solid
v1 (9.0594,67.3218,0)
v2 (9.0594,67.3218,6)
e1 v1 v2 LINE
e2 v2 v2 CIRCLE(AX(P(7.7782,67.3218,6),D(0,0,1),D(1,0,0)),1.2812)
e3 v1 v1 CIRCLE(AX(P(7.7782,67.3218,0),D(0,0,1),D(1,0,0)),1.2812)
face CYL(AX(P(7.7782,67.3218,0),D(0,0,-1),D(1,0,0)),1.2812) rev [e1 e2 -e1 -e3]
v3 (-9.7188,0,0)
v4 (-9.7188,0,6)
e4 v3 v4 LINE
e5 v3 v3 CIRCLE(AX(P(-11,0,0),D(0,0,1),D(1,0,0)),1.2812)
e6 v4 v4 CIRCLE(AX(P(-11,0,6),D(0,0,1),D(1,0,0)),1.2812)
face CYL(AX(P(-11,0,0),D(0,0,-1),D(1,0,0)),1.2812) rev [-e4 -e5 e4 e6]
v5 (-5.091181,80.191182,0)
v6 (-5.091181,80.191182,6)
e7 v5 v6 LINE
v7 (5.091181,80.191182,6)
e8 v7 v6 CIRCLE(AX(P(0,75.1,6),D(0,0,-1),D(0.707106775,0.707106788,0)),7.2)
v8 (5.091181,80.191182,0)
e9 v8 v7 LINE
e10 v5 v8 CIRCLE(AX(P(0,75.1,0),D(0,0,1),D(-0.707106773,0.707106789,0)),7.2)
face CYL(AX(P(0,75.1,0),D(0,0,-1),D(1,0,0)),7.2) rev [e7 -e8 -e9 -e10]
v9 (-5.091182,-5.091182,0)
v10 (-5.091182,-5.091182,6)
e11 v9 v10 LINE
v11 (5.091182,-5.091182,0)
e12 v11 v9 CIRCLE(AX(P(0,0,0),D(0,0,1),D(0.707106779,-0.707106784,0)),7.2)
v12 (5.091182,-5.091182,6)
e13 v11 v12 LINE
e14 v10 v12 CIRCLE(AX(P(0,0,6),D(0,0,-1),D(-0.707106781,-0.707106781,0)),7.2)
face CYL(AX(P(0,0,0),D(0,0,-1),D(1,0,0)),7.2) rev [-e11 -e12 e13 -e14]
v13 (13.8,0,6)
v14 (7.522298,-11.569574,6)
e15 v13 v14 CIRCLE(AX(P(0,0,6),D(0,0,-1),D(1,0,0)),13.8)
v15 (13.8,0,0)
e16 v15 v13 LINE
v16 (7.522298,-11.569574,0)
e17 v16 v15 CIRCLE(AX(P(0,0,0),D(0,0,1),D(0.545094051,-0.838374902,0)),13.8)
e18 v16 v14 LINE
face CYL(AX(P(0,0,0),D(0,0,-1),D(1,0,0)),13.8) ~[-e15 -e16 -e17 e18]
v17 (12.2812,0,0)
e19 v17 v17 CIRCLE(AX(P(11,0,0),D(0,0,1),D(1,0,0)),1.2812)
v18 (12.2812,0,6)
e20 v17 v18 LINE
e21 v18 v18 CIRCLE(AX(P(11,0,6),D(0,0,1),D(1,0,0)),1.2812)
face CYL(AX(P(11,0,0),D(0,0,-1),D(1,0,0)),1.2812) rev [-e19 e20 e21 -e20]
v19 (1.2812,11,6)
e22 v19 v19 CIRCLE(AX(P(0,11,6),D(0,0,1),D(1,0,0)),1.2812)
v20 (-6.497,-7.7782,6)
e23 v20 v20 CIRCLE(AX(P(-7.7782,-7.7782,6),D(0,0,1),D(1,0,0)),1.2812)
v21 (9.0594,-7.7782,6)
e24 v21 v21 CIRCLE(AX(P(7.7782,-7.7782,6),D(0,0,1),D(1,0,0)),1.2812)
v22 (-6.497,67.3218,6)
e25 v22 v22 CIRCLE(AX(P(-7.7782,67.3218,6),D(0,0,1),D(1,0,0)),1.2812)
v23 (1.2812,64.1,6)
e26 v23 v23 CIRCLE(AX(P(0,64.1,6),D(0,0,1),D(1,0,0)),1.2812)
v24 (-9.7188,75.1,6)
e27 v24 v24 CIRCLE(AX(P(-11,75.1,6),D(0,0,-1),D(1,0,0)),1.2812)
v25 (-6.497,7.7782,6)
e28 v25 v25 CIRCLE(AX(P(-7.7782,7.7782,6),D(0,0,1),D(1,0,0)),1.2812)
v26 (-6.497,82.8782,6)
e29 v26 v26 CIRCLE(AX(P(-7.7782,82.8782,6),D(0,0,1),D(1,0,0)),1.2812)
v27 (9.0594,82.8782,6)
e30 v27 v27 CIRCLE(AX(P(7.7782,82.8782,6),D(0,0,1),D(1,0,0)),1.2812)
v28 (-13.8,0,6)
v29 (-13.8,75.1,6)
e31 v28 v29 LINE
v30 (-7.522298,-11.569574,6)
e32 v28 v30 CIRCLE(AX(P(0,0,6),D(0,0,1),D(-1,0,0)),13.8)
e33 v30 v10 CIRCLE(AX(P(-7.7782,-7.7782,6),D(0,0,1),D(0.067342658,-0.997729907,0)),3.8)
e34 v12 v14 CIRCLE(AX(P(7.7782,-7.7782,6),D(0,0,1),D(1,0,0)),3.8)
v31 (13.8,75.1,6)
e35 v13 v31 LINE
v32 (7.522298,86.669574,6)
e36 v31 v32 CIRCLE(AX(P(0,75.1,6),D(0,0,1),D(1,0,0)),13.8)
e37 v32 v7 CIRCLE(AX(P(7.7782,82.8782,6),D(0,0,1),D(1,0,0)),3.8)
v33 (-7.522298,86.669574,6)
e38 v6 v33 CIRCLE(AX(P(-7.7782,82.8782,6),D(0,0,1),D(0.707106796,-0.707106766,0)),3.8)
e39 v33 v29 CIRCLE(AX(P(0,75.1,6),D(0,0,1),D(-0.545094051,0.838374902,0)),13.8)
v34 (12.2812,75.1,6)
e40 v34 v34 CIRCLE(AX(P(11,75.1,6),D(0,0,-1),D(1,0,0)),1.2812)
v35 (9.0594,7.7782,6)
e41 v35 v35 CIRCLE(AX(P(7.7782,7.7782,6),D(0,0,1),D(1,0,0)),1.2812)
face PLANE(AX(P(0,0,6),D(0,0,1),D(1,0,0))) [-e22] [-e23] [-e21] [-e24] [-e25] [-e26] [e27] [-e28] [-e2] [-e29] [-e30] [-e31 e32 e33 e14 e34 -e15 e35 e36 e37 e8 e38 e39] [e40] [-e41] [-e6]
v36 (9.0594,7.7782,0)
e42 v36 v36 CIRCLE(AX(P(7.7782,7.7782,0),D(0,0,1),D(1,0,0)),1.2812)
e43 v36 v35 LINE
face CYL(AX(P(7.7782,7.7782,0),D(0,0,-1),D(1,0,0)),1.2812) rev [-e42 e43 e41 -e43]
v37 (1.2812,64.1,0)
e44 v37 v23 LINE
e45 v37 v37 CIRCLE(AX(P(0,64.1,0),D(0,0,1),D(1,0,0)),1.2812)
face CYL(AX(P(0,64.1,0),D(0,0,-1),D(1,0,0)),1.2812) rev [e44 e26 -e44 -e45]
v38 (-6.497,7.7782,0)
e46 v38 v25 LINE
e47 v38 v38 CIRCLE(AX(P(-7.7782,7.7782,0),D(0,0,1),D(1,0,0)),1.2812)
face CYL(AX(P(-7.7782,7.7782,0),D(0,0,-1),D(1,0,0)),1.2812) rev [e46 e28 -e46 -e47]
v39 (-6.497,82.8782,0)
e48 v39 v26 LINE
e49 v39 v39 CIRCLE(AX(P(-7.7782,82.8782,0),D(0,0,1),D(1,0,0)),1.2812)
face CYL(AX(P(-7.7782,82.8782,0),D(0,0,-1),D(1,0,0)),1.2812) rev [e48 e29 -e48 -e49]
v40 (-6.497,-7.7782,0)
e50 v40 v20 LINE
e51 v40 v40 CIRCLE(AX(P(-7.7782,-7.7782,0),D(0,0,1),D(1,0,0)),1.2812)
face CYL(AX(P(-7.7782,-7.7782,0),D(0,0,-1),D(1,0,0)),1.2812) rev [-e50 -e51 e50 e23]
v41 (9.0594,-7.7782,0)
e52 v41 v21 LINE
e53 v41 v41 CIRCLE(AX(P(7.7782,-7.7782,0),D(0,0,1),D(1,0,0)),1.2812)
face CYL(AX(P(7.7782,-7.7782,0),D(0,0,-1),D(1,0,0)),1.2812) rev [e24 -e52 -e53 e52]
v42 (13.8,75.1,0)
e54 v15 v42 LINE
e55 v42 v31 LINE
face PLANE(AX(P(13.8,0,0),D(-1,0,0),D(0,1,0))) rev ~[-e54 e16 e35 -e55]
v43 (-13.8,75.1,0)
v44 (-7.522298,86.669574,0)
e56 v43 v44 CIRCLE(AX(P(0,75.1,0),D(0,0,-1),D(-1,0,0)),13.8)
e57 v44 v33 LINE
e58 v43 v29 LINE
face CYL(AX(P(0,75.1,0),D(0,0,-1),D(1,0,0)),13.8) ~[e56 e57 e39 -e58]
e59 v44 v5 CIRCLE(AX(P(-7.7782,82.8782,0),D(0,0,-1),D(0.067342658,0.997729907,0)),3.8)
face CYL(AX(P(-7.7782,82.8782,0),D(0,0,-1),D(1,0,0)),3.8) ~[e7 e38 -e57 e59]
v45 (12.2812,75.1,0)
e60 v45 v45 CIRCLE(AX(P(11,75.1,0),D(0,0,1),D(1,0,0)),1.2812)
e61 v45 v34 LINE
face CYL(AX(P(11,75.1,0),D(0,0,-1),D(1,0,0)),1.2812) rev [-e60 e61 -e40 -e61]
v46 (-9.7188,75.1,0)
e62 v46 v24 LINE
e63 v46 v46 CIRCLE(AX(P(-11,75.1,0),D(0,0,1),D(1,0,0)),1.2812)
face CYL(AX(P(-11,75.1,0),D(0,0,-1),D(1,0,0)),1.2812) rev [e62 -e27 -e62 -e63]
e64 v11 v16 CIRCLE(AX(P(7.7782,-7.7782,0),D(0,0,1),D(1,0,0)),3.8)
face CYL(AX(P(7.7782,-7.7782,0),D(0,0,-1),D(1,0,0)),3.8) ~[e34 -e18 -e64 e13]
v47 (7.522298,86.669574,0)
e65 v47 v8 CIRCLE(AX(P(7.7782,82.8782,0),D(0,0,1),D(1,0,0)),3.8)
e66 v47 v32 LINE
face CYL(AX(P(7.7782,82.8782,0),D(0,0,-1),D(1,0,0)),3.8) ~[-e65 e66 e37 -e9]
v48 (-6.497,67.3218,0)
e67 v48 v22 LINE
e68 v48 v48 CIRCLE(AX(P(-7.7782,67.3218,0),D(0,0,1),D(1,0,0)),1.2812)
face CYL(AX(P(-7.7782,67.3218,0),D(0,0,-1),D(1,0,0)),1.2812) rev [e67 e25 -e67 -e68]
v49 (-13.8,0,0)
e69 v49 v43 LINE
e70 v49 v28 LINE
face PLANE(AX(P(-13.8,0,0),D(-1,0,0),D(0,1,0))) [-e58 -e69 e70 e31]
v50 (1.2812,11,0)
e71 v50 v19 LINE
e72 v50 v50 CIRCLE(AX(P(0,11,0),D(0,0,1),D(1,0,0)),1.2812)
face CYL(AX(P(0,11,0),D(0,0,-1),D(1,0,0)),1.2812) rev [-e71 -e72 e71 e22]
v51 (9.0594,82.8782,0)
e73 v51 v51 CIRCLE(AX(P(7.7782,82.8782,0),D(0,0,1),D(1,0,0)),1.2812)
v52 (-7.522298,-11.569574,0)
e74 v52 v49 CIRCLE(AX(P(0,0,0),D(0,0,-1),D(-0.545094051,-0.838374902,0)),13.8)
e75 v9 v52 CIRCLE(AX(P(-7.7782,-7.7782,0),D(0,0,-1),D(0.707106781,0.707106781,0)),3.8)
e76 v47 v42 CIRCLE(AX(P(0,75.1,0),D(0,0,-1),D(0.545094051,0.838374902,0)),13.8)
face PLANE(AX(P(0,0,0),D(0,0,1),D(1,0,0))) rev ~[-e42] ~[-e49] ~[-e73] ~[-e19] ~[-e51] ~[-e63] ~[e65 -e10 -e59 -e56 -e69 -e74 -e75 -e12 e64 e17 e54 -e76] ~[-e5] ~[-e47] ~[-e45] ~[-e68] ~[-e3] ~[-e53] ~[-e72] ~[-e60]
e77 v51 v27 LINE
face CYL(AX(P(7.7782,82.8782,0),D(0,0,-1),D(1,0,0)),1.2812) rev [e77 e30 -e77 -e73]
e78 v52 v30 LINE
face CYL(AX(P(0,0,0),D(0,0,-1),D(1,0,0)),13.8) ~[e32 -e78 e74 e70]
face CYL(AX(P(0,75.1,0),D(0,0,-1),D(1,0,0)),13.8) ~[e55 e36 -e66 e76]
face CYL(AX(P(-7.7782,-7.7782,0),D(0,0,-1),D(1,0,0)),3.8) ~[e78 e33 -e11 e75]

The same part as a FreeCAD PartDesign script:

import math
import FreeCAD as App
import Part
import Sketcher
Q = App.Units.Quantity

doc = App.newDocument("Part")
body = doc.addObject("PartDesign::Body", "Body")

sketch1 = body.newObject("Sketcher::SketchObject", "Sketch")
sketch1.AttachmentSupport = (doc.getObject("XY_Plane"), [""])
sketch1.MapMode = "FlatFace"
sketch1.addGeometry(Part.LineSegment(App.Vector(13.8, 0, 0), App.Vector(13.8, 75.1, 0)), False)
sketch1.addGeometry(Part.ArcOfCircle(Part.Circle(App.Vector(0, 75.1, 0), App.Vector(0, 0, 1), 13.8), math.radians(0), math.radians(56.968909)), False)
sketch1.addGeometry(Part.ArcOfCircle(Part.Circle(App.Vector(7.7782, 82.8782, 0), App.Vector(0, 0, 1), 3.8), math.radians(93.861372), math.radians(224.999999)), False)
sketch1.addGeometry(Part.ArcOfCircle(Part.Circle(App.Vector(0, 75.1, 0), App.Vector(0, 0, 1), 7.2), math.radians(134.999999), math.radians(405.000001)), False)
sketch1.addGeometry(Part.ArcOfCircle(Part.Circle(App.Vector(-7.7782, 82.8782, 0), App.Vector(0, 0, 1), 3.8), math.radians(-44.999999), math.radians(86.138628)), False)
sketch1.addGeometry(Part.ArcOfCircle(Part.Circle(App.Vector(0, 75.1, 0), App.Vector(0, 0, 1), 13.8), math.radians(123.031091), math.radians(180)), False)
sketch1.addGeometry(Part.LineSegment(App.Vector(-13.8, 75.1, 0), App.Vector(-13.8, 0, 0)), False)
sketch1.addGeometry(Part.ArcOfCircle(Part.Circle(App.Vector(0, 0, 0), App.Vector(0, 0, 1), 13.8), math.radians(180), math.radians(236.968909)), False)
sketch1.addGeometry(Part.ArcOfCircle(Part.Circle(App.Vector(-7.7782, -7.7782, 0), App.Vector(0, 0, 1), 3.8), math.radians(-86.138628), math.radians(45)), False)
sketch1.addGeometry(Part.ArcOfCircle(Part.Circle(App.Vector(0, 0, 0), App.Vector(0, 0, 1), 7.2), math.radians(-45), math.radians(225)), False)
sketch1.addGeometry(Part.ArcOfCircle(Part.Circle(App.Vector(7.7782, -7.7782, 0), App.Vector(0, 0, 1), 3.8), math.radians(135), math.radians(266.138628)), False)
sketch1.addGeometry(Part.ArcOfCircle(Part.Circle(App.Vector(0, 0, 0), App.Vector(0, 0, 1), 13.8), math.radians(-56.968909), math.radians(0)), False)
sketch1.addGeometry(Part.Circle(App.Vector(-11, 0, 0), App.Vector(0, 0, 1), 1.2812), False)
sketch1.addGeometry(Part.Circle(App.Vector(-7.7782, 7.7782, 0), App.Vector(0, 0, 1), 1.2812), False)
sketch1.addGeometry(Part.Circle(App.Vector(0, 11, 0), App.Vector(0, 0, 1), 1.2812), False)
sketch1.addGeometry(Part.Circle(App.Vector(7.7782, 7.7782, 0), App.Vector(0, 0, 1), 1.2812), False)
sketch1.addGeometry(Part.Circle(App.Vector(11, 0, 0), App.Vector(0, 0, 1), 1.2812), False)
sketch1.addGeometry(Part.Circle(App.Vector(7.7782, -7.7782, 0), App.Vector(0, 0, 1), 1.2812), False)
sketch1.addGeometry(Part.Circle(App.Vector(-7.7782, -7.7782, 0), App.Vector(0, 0, 1), 1.2812), False)
sketch1.addGeometry(Part.Circle(App.Vector(7.7782, 67.3218, 0), App.Vector(0, 0, 1), 1.2812), False)
sketch1.addGeometry(Part.Circle(App.Vector(-11, 75.1, 0), App.Vector(0, 0, 1), 1.2812), False)
sketch1.addGeometry(Part.Circle(App.Vector(11, 75.1, 0), App.Vector(0, 0, 1), 1.2812), False)
sketch1.addGeometry(Part.Circle(App.Vector(-7.7782, 67.3218, 0), App.Vector(0, 0, 1), 1.2812), False)
sketch1.addGeometry(Part.Circle(App.Vector(0, 64.1, 0), App.Vector(0, 0, 1), 1.2812), False)
sketch1.addGeometry(Part.Circle(App.Vector(-7.7782, 82.8782, 0), App.Vector(0, 0, 1), 1.2812), False)
sketch1.addGeometry(Part.Circle(App.Vector(7.7782, 82.8782, 0), App.Vector(0, 0, 1), 1.2812), False)
sketch1.addConstraint(Sketcher.Constraint("Tangent", 0, 2, 1, 1))
sketch1.addConstraint(Sketcher.Constraint("Coincident", 1, 2, 2, 1))
sketch1.addConstraint(Sketcher.Constraint("Tangent", 2, 2, 3, 2))
sketch1.addConstraint(Sketcher.Constraint("Tangent", 3, 1, 4, 1))
sketch1.addConstraint(Sketcher.Constraint("Coincident", 4, 2, 5, 1))
sketch1.addConstraint(Sketcher.Constraint("Tangent", 5, 2, 6, 1))
sketch1.addConstraint(Sketcher.Constraint("Tangent", 6, 2, 7, 1))
sketch1.addConstraint(Sketcher.Constraint("Coincident", 7, 2, 8, 1))
sketch1.addConstraint(Sketcher.Constraint("Tangent", 8, 2, 9, 2))
sketch1.addConstraint(Sketcher.Constraint("Tangent", 9, 1, 10, 1))
sketch1.addConstraint(Sketcher.Constraint("Coincident", 10, 2, 11, 1))
sketch1.addConstraint(Sketcher.Constraint("Tangent", 11, 2, 0, 1))
sketch1.addConstraint(Sketcher.Constraint("Vertical", 0))
sketch1.addConstraint(Sketcher.Constraint("Vertical", 6))
sketch1.addConstraint(Sketcher.Constraint("Coincident", 7, 3, -1, 1))
sketch1.addConstraint(Sketcher.Constraint("Coincident", 9, 3, -1, 1))
sketch1.addConstraint(Sketcher.Constraint("Coincident", 11, 3, -1, 1))
sketch1.addConstraint(Sketcher.Constraint("Coincident", 3, 3, 1, 3))
sketch1.addConstraint(Sketcher.Constraint("Coincident", 5, 3, 1, 3))
sketch1.addConstraint(Sketcher.Constraint("Coincident", 17, 3, 10, 3))
sketch1.addConstraint(Sketcher.Constraint("Coincident", 18, 3, 8, 3))
sketch1.addConstraint(Sketcher.Constraint("Coincident", 24, 3, 4, 3))
sketch1.addConstraint(Sketcher.Constraint("Coincident", 25, 3, 2, 3))
sketch1.addConstraint(Sketcher.Constraint("Equal", 2, 4))
sketch1.addConstraint(Sketcher.Constraint("Equal", 1, 5))
sketch1.addConstraint(Sketcher.Constraint("Equal", 5, 7))
sketch1.addConstraint(Sketcher.Constraint("Equal", 4, 8))
sketch1.addConstraint(Sketcher.Constraint("Equal", 3, 9))
sketch1.addConstraint(Sketcher.Constraint("Equal", 8, 10))
sketch1.addConstraint(Sketcher.Constraint("Equal", 12, 13))
sketch1.addConstraint(Sketcher.Constraint("Equal", 13, 14))
sketch1.addConstraint(Sketcher.Constraint("Equal", 14, 15))
sketch1.addConstraint(Sketcher.Constraint("Equal", 15, 16))
sketch1.addConstraint(Sketcher.Constraint("Equal", 16, 17))
sketch1.addConstraint(Sketcher.Constraint("Equal", 17, 18))
sketch1.addConstraint(Sketcher.Constraint("Equal", 18, 19))
sketch1.addConstraint(Sketcher.Constraint("Equal", 19, 20))
sketch1.addConstraint(Sketcher.Constraint("Equal", 20, 21))
sketch1.addConstraint(Sketcher.Constraint("Equal", 21, 22))
sketch1.addConstraint(Sketcher.Constraint("Equal", 22, 23))
sketch1.addConstraint(Sketcher.Constraint("Equal", 23, 24))
sketch1.addConstraint(Sketcher.Constraint("Equal", 24, 25))
sketch1.addConstraint(Sketcher.Constraint("Symmetric", 10, 3, 13, 3, -1, 1))
sketch1.addConstraint(Sketcher.Constraint("Symmetric", 8, 3, 15, 3, -1, 1))
sketch1.addConstraint(Sketcher.Constraint("Symmetric", 12, 3, 16, 3, -1, 1))
sketch1.addConstraint(Sketcher.Constraint("Symmetric", 20, 3, 21, 3, -2))
sketch1.addConstraint(Sketcher.Constraint("Symmetric", 19, 3, 22, 3, -2))
sketch1.addConstraint(Sketcher.Constraint("PointOnObject", 12, 3, -1))
sketch1.addConstraint(Sketcher.Constraint("PointOnObject", 14, 3, -2))
sketch1.addConstraint(Sketcher.Constraint("PointOnObject", 23, 3, -2))
sketch1.addConstraint(Sketcher.Constraint("Horizontal", 2, 3, 4, 3))
sketch1.addConstraint(Sketcher.Constraint("Horizontal", 8, 3, 10, 3))
sketch1.addConstraint(Sketcher.Constraint("Horizontal", 5, 3, 20, 3))
sketch1.addConstraint(Sketcher.Constraint("Vertical", 4, 3, 8, 3))
sketch1.addConstraint(Sketcher.Constraint("Vertical", 17, 3, 19, 3))
sketch1.addConstraint(Sketcher.Constraint("Vertical", 12, 3, 20, 3))
sketch1.addConstraint(Sketcher.Constraint("Radius", 1, Q("13.8 mm")))
sketch1.addConstraint(Sketcher.Constraint("Radius", 2, Q("3.8 mm")))
sketch1.addConstraint(Sketcher.Constraint("Radius", 3, Q("7.2 mm")))
sketch1.addConstraint(Sketcher.Constraint("DistanceY", 0, 1, 0, 2, Q("75.1 mm")))
sketch1.addConstraint(Sketcher.Constraint("DistanceX", 12, 3, -1, 1, Q("11 mm")))
sketch1.addConstraint(Sketcher.Constraint("DistanceY", -1, 1, 14, 3, Q("11 mm")))
sketch1.addConstraint(Sketcher.Constraint("DistanceY", 23, 3, 1, 3, Q("11 mm")))
sketch1.addConstraint(Sketcher.Constraint("Diameter", 12, Q("2.5624 mm")))
sketch1.addConstraint(Sketcher.Constraint("DistanceX", 1, 2, 2, 3, Q("0.256 mm")))
sketch1.addConstraint(Sketcher.Constraint("DistanceY", -1, 1, 19, 3, Q("67.3218 mm")))
pad1 = body.newObject("PartDesign::Pad", "Pad")
pad1.Profile = sketch1
pad1.Length = 6

doc.recompute()
